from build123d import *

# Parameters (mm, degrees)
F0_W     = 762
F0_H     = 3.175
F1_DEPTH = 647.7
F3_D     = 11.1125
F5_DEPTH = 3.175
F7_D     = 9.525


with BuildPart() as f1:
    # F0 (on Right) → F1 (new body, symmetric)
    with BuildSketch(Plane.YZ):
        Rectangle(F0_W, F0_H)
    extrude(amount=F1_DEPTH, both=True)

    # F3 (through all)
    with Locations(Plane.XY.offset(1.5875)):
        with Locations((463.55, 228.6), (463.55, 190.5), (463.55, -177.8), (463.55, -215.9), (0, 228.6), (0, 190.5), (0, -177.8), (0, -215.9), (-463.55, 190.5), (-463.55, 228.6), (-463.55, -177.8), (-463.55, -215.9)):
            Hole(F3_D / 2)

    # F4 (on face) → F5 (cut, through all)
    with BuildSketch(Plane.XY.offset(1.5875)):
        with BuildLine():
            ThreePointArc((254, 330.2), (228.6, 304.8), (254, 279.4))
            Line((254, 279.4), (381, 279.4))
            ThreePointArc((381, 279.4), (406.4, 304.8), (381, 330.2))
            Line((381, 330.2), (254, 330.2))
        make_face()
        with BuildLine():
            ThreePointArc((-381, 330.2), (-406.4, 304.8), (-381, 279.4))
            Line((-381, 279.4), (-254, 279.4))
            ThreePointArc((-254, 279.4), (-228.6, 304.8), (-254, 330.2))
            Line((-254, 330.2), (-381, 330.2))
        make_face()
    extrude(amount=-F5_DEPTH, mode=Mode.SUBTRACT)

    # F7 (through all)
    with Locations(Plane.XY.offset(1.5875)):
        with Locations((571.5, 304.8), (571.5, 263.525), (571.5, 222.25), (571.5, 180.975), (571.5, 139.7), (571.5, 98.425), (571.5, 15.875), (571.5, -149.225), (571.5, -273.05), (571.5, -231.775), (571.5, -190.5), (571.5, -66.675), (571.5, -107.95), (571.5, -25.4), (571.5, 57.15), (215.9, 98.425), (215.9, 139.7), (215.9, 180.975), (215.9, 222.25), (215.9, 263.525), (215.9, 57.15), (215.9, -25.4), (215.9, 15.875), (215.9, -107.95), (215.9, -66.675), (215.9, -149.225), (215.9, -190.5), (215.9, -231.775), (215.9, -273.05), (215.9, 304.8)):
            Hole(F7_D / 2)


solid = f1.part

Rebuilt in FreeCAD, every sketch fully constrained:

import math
import FreeCAD as App
import Part
import Sketcher

V = App.Vector
Q = App.Units.Quantity

doc = App.newDocument("Part")
body = doc.addObject("PartDesign::Body", "Body")

# Sketch on YZ plane
sketch1 = body.newObject("Sketcher::SketchObject", "Sketch")
sketch1.AttachmentSupport = (doc.getObject("YZ_Plane"), [""])
sketch1.MapMode = "FlatFace"
sketch1.addGeometry(Part.LineSegment(V(-381, 1.6, 0), V(-381, -1.6, 0)), False)
sketch1.addGeometry(Part.LineSegment(V(-381, -1.6, 0), V(381, -1.6, 0)), False)
sketch1.addGeometry(Part.LineSegment(V(381, -1.6, 0), V(381, 1.6, 0)), False)
sketch1.addGeometry(Part.LineSegment(V(381, 1.6, 0), V(-381, 1.6, 0)), False)
sketch1.addConstraint(Sketcher.Constraint("Coincident", 0, 2, 1, 1))
sketch1.addConstraint(Sketcher.Constraint("Coincident", 1, 2, 2, 1))
sketch1.addConstraint(Sketcher.Constraint("Coincident", 2, 2, 3, 1))
sketch1.addConstraint(Sketcher.Constraint("Coincident", 3, 2, 0, 1))
sketch1.addConstraint(Sketcher.Constraint("Vertical", 0))
sketch1.addConstraint(Sketcher.Constraint("Horizontal", 1))
sketch1.addConstraint(Sketcher.Constraint("Vertical", 2))
sketch1.addConstraint(Sketcher.Constraint("Horizontal", 3))
sketch1.addConstraint(Sketcher.Constraint("Symmetric", 0, 2, 2, 2, -1, 1))
sketch1.addConstraint(Sketcher.Constraint("DistanceX", 1, 1, 1, 2, Q("30 in")))
sketch1.addConstraint(Sketcher.Constraint("DistanceY", 0, 2, 0, 1, Q("0.125 in")))
pad1 = body.newObject("PartDesign::Pad", "Pad")
pad1.Profile = sketch1
pad1.Length = Q("51 in")
pad1.Midplane = True

# Sketch on XY plane
sketch2 = body.newObject("Sketcher::SketchObject", "Sketch001")
sketch2.AttachmentSupport = (doc.getObject("XY_Plane"), [""])
sketch2.MapMode = "FlatFace"
sketch2.AttachmentOffset = App.Placement(V(0, 0, 0.0625 * 25.4), App.Rotation())
sketch2.addGeometry(Part.Circle(V(464, 229, 0), V(0, 0, 1), 6), False)
sketch2.addGeometry(Part.Circle(V(464, 190, 0), V(0, 0, 1), 6), False)
sketch2.addGeometry(Part.Circle(V(464, -178, 0), V(0, 0, 1), 6), False)
sketch2.addGeometry(Part.Circle(V(464, -216, 0), V(0, 0, 1), 6), False)
sketch2.addGeometry(Part.Circle(V(0, 229, 0), V(0, 0, 1), 6), False)
sketch2.addGeometry(Part.Circle(V(0, 190, 0), V(0, 0, 1), 6), False)
sketch2.addGeometry(Part.Circle(V(0, -178, 0), V(0, 0, 1), 6), False)
sketch2.addGeometry(Part.Circle(V(0, -216, 0), V(0, 0, 1), 6), False)
sketch2.addGeometry(Part.Circle(V(-464, 190, 0), V(0, 0, 1), 6), False)
sketch2.addGeometry(Part.Circle(V(-464, 229, 0), V(0, 0, 1), 6), False)
sketch2.addGeometry(Part.Circle(V(-464, -178, 0), V(0, 0, 1), 6), False)
sketch2.addGeometry(Part.Circle(V(-464, -216, 0), V(0, 0, 1), 6), False)
sketch2.addConstraint(Sketcher.Constraint("Equal", 0, 1))
sketch2.addConstraint(Sketcher.Constraint("Equal", 1, 2))
sketch2.addConstraint(Sketcher.Constraint("Equal", 2, 3))
sketch2.addConstraint(Sketcher.Constraint("Equal", 3, 4))
sketch2.addConstraint(Sketcher.Constraint("Equal", 4, 5))
sketch2.addConstraint(Sketcher.Constraint("Equal", 5, 6))
sketch2.addConstraint(Sketcher.Constraint("Equal", 6, 7))
sketch2.addConstraint(Sketcher.Constraint("Equal", 7, 8))
sketch2.addConstraint(Sketcher.Constraint("Equal", 8, 9))
sketch2.addConstraint(Sketcher.Constraint("Equal", 9, 10))
sketch2.addConstraint(Sketcher.Constraint("Equal", 10, 11))
sketch2.addConstraint(Sketcher.Constraint("Symmetric", 1, 3, 8, 3, -2))
sketch2.addConstraint(Sketcher.Constraint("Symmetric", 0, 3, 9, 3, -2))
sketch2.addConstraint(Sketcher.Constraint("Symmetric", 2, 3, 10, 3, -2))
sketch2.addConstraint(Sketcher.Constraint("Symmetric", 3, 3, 11, 3, -2))
sketch2.addConstraint(Sketcher.Constraint("PointOnObject", 4, 3, -2))
sketch2.addConstraint(Sketcher.Constraint("PointOnObject", 5, 3, -2))
sketch2.addConstraint(Sketcher.Constraint("PointOnObject", 6, 3, -2))
sketch2.addConstraint(Sketcher.Constraint("PointOnObject", 7, 3, -2))
sketch2.addConstraint(Sketcher.Constraint("Horizontal", 0, 3, 4, 3))
sketch2.addConstraint(Sketcher.Constraint("Horizontal", 1, 3, 5, 3))
sketch2.addConstraint(Sketcher.Constraint("Horizontal", 2, 3, 6, 3))
sketch2.addConstraint(Sketcher.Constraint("Horizontal", 3, 3, 7, 3))
sketch2.addConstraint(Sketcher.Constraint("Vertical", 0, 3, 1, 3))
sketch2.addConstraint(Sketcher.Constraint("Vertical", 1, 3, 2, 3))
sketch2.addConstraint(Sketcher.Constraint("Vertical", 2, 3, 3, 3))
sketch2.addConstraint(Sketcher.Constraint("Diameter", 0, Q("0.4375 in")))
sketch2.addConstraint(Sketcher.Constraint("DistanceY", -1, 1, 0, 3, Q("9 in")))
sketch2.addConstraint(Sketcher.Constraint("DistanceY", 2, 3, -1, 1, Q("7 in")))
sketch2.addConstraint(Sketcher.Constraint("DistanceY", 3, 3, 1, 3, Q("16 in")))
sketch2.addConstraint(Sketcher.Constraint("DistanceY", -1, 1, 1, 3, Q("7.5 in")))
sketch2.addConstraint(Sketcher.Constraint("DistanceX", 8, 3, 1, 3, Q("36.5 in")))
doc.recompute()
hole = body.newObject("PartDesign::Hole", "Hole")
hole.Profile = sketch2
hole.ThreadType = "None"
hole.Diameter = Q("0.4375 in")
hole.DepthType = "ThroughAll"

# Sketch on XY plane
sketch3 = body.newObject("Sketcher::SketchObject", "Sketch002")
sketch3.AttachmentSupport = (doc.getObject("XY_Plane"), [""])
sketch3.MapMode = "FlatFace"
sketch3.AttachmentOffset = App.Placement(V(0, 0, 0.0625 * 25.4), App.Rotation())
sketch3.addGeometry(Part.ArcOfCircle(Part.Circle(V(254, 305, 0), V(0, 0, 1), 25), math.radians(90), math.radians(270)), False)
sketch3.addGeometry(Part.LineSegment(V(254, 279, 0), V(381, 279, 0)), False)
sketch3.addGeometry(Part.ArcOfCircle(Part.Circle(V(381, 305, 0), V(0, 0, 1), 25), math.radians(-90), math.radians(90)), False)
sketch3.addGeometry(Part.LineSegment(V(381, 330, 0), V(254, 330, 0)), False)
sketch3.addGeometry(Part.ArcOfCircle(Part.Circle(V(-381, 305, 0), V(0, 0, 1), 25), math.radians(90), math.radians(270)), False)
sketch3.addGeometry(Part.LineSegment(V(-381, 279, 0), V(-254, 279, 0)), False)
sketch3.addGeometry(Part.ArcOfCircle(Part.Circle(V(-254, 305, 0), V(0, 0, 1), 25), math.radians(-90), math.radians(90)), False)
sketch3.addGeometry(Part.LineSegment(V(-254, 330, 0), V(-381, 330, 0)), False)
sketch3.addConstraint(Sketcher.Constraint("Tangent", 0, 2, 1, 1))
sketch3.addConstraint(Sketcher.Constraint("Tangent", 1, 2, 2, 1))
sketch3.addConstraint(Sketcher.Constraint("Tangent", 2, 2, 3, 1))
sketch3.addConstraint(Sketcher.Constraint("Tangent", 3, 2, 0, 1))
sketch3.addConstraint(Sketcher.Constraint("Tangent", 4, 2, 5, 1))
sketch3.addConstraint(Sketcher.Constraint("Tangent", 5, 2, 6, 1))
sketch3.addConstraint(Sketcher.Constraint("Tangent", 6, 2, 7, 1))
sketch3.addConstraint(Sketcher.Constraint("Tangent", 7, 2, 4, 1))
sketch3.addConstraint(Sketcher.Constraint("Horizontal", 1))
sketch3.addConstraint(Sketcher.Constraint("Horizontal", 3))
sketch3.addConstraint(Sketcher.Constraint("Horizontal", 5))
sketch3.addConstraint(Sketcher.Constraint("Horizontal", 7))
sketch3.addConstraint(Sketcher.Constraint("Equal", 2, 4))
sketch3.addConstraint(Sketcher.Constraint("Symmetric", 2, 3, 4, 3, -2))
sketch3.addConstraint(Sketcher.Constraint("Equal", 3, 5))
sketch3.addConstraint(Sketcher.Constraint("Radius", 0, Q("1 in")))
sketch3.addConstraint(Sketcher.Constraint("DistanceX", 1, 1, 1, 2, Q("5 in")))
sketch3.addConstraint(Sketcher.Constraint("DistanceX", -1, 1, 0, 3, Q("10 in")))
sketch3.addConstraint(Sketcher.Constraint("DistanceY", -1, 1, 0, 3, Q("12 in")))
pocket1 = body.newObject("PartDesign::Pocket", "Pocket")
pocket1.Profile = sketch3
pocket1.Type = "ThroughAll"

# Sketch on XY plane
sketch4 = body.newObject("Sketcher::SketchObject", "Sketch003")
sketch4.AttachmentSupport = (doc.getObject("XY_Plane"), [""])
sketch4.MapMode = "FlatFace"
sketch4.AttachmentOffset = App.Placement(V(0, 0, 0.0625 * 25.4), App.Rotation())
sketch4.addGeometry(Part.Circle(V(571.5, 304.8, 0), V(0, 0, 1), 4.8), False)
sketch4.addGeometry(Part.Circle(V(571.5, 263.5, 0), V(0, 0, 1), 4.8), False)
sketch4.addGeometry(Part.Circle(V(571.5, 222.2, 0), V(0, 0, 1), 4.8), False)
sketch4.addGeometry(Part.Circle(V(571.5, 181, 0), V(0, 0, 1), 4.8), False)
sketch4.addGeometry(Part.Circle(V(571.5, 139.7, 0), V(0, 0, 1), 4.8), False)
sketch4.addGeometry(Part.Circle(V(571.5, 98.4, 0), V(0, 0, 1), 4.8), False)
sketch4.addGeometry(Part.Circle(V(571.5, 15.9, 0), V(0, 0, 1), 4.8), False)
sketch4.addGeometry(Part.Circle(V(571.5, -149.2, 0), V(0, 0, 1), 4.8), False)
sketch4.addGeometry(Part.Circle(V(571.5, -273.1, 0), V(0, 0, 1), 4.8), False)
sketch4.addGeometry(Part.Circle(V(571.5, -231.8, 0), V(0, 0, 1), 4.8), False)
sketch4.addGeometry(Part.Circle(V(571.5, -190.5, 0), V(0, 0, 1), 4.8), False)
sketch4.addGeometry(Part.Circle(V(571.5, -66.7, 0), V(0, 0, 1), 4.8), False)
sketch4.addGeometry(Part.Circle(V(571.5, -108, 0), V(0, 0, 1), 4.8), False)
sketch4.addGeometry(Part.Circle(V(571.5, -25.4, 0), V(0, 0, 1), 4.8), False)
sketch4.addGeometry(Part.Circle(V(571.5, 57.1, 0), V(0, 0, 1), 4.8), False)
sketch4.addGeometry(Part.Circle(V(215.9, 98.4, 0), V(0, 0, 1), 4.8), False)
sketch4.addGeometry(Part.Circle(V(215.9, 139.7, 0), V(0, 0, 1), 4.8), False)
sketch4.addGeometry(Part.Circle(V(215.9, 181, 0), V(0, 0, 1), 4.8), False)
sketch4.addGeometry(Part.Circle(V(215.9, 222.2, 0), V(0, 0, 1), 4.8), False)
sketch4.addGeometry(Part.Circle(V(215.9, 263.5, 0), V(0, 0, 1), 4.8), False)
sketch4.addGeometry(Part.Circle(V(215.9, 57.1, 0), V(0, 0, 1), 4.8), False)
sketch4.addGeometry(Part.Circle(V(215.9, -25.4, 0), V(0, 0, 1), 4.8), False)
sketch4.addGeometry(Part.Circle(V(215.9, 15.9, 0), V(0, 0, 1), 4.8), False)
sketch4.addGeometry(Part.Circle(V(215.9, -108, 0), V(0, 0, 1), 4.8), False)
sketch4.addGeometry(Part.Circle(V(215.9, -66.7, 0), V(0, 0, 1), 4.8), False)
sketch4.addGeometry(Part.Circle(V(215.9, -149.2, 0), V(0, 0, 1), 4.8), False)
sketch4.addGeometry(Part.Circle(V(215.9, -190.5, 0), V(0, 0, 1), 4.8), False)
sketch4.addGeometry(Part.Circle(V(215.9, -231.8, 0), V(0, 0, 1), 4.8), False)
sketch4.addGeometry(Part.Circle(V(215.9, -273.1, 0), V(0, 0, 1), 4.8), False)
sketch4.addGeometry(Part.Circle(V(215.9, 304.8, 0), V(0, 0, 1), 4.8), False)
sketch4.addConstraint(Sketcher.Constraint("Equal", 0, 1))
sketch4.addConstraint(Sketcher.Constraint("Equal", 1, 2))
sketch4.addConstraint(Sketcher.Constraint("Equal", 2, 3))
sketch4.addConstraint(Sketcher.Constraint("Equal", 3, 4))
sketch4.addConstraint(Sketcher.Constraint("Equal", 4, 5))
sketch4.addConstraint(Sketcher.Constraint("Equal", 5, 6))
sketch4.addConstraint(Sketcher.Constraint("Equal", 6, 7))
sketch4.addConstraint(Sketcher.Constraint("Equal", 7, 8))
sketch4.addConstraint(Sketcher.Constraint("Equal", 8, 9))
sketch4.addConstraint(Sketcher.Constraint("Equal", 9, 10))
sketch4.addConstraint(Sketcher.Constraint("Equal", 10, 11))
sketch4.addConstraint(Sketcher.Constraint("Equal", 11, 12))
sketch4.addConstraint(Sketcher.Constraint("Equal", 12, 13))
sketch4.addConstraint(Sketcher.Constraint("Equal", 13, 14))
sketch4.addConstraint(Sketcher.Constraint("Equal", 14, 15))
sketch4.addConstraint(Sketcher.Constraint("Equal", 15, 16))
sketch4.addConstraint(Sketcher.Constraint("Equal", 16, 17))
sketch4.addConstraint(Sketcher.Constraint("Equal", 17, 18))
sketch4.addConstraint(Sketcher.Constraint("Equal", 18, 19))
sketch4.addConstraint(Sketcher.Constraint("Equal", 19, 20))
sketch4.addConstraint(Sketcher.Constraint("Equal", 20, 21))
sketch4.addConstraint(Sketcher.Constraint("Equal", 21, 22))
sketch4.addConstraint(Sketcher.Constraint("Equal", 22, 23))
sketch4.addConstraint(Sketcher.Constraint("Equal", 23, 24))
sketch4.addConstraint(Sketcher.Constraint("Equal", 24, 25))
sketch4.addConstraint(Sketcher.Constraint("Equal", 25, 26))
sketch4.addConstraint(Sketcher.Constraint("Equal", 26, 27))
sketch4.addConstraint(Sketcher.Constraint("Equal", 27, 28))
sketch4.addConstraint(Sketcher.Constraint("Equal", 28, 29))
sketch4.addConstraint(Sketcher.Constraint("Horizontal", 5, 3, 15, 3))
sketch4.addConstraint(Sketcher.Constraint("Horizontal", 4, 3, 16, 3))
sketch4.addConstraint(Sketcher.Constraint("Horizontal", 3, 3, 17, 3))
sketch4.addConstraint(Sketcher.Constraint("Horizontal", 2, 3, 18, 3))
sketch4.addConstraint(Sketcher.Constraint("Horizontal", 1, 3, 19, 3))
sketch4.addConstraint(Sketcher.Constraint("Horizontal", 14, 3, 20, 3))
sketch4.addConstraint(Sketcher.Constraint("Horizontal", 13, 3, 21, 3))
sketch4.addConstraint(Sketcher.Constraint("Horizontal", 6, 3, 22, 3))
sketch4.addConstraint(Sketcher.Constraint("Horizontal", 12, 3, 23, 3))
sketch4.addConstraint(Sketcher.Constraint("Horizontal", 11, 3, 24, 3))
sketch4.addConstraint(Sketcher.Constraint("Horizontal", 7, 3, 25, 3))
sketch4.addConstraint(Sketcher.Constraint("Horizontal", 10, 3, 26, 3))
sketch4.addConstraint(Sketcher.Constraint("Horizontal", 9, 3, 27, 3))
sketch4.addConstraint(Sketcher.Constraint("Horizontal", 8, 3, 28, 3))
sketch4.addConstraint(Sketcher.Constraint("Horizontal", 0, 3, 29, 3))
sketch4.addConstraint(Sketcher.Constraint("Vertical", 0, 3, 1, 3))
sketch4.addConstraint(Sketcher.Constraint("Vertical", 1, 3, 2, 3))
sketch4.addConstraint(Sketcher.Constraint("Vertical", 2, 3, 3, 3))
sketch4.addConstraint(Sketcher.Constraint("Vertical", 3, 3, 4, 3))
sketch4.addConstraint(Sketcher.Constraint("Vertical", 4, 3, 5, 3))
sketch4.addConstraint(Sketcher.Constraint("Vertical", 5, 3, 6, 3))
sketch4.addConstraint(Sketcher.Constraint("Vertical", 6, 3, 7, 3))
sketch4.addConstraint(Sketcher.Constraint("Vertical", 7, 3, 8, 3))
sketch4.addConstraint(Sketcher.Constraint("Vertical", 8, 3, 9, 3))
sketch4.addConstraint(Sketcher.Constraint("Vertical", 9, 3, 10, 3))
sketch4.addConstraint(Sketcher.Constraint("Vertical", 10, 3, 11, 3))
sketch4.addConstraint(Sketcher.Constraint("Vertical", 11, 3, 12, 3))
sketch4.addConstraint(Sketcher.Constraint("Vertical", 12, 3, 13, 3))
sketch4.addConstraint(Sketcher.Constraint("Vertical", 13, 3, 14, 3))
sketch4.addConstraint(Sketcher.Constraint("Vertical", 15, 3, 16, 3))
sketch4.addConstraint(Sketcher.Constraint("Vertical", 16, 3, 17, 3))
sketch4.addConstraint(Sketcher.Constraint("Vertical", 17, 3, 18, 3))
sketch4.addConstraint(Sketcher.Constraint("Vertical", 18, 3, 19, 3))
sketch4.addConstraint(Sketcher.Constraint("Vertical", 19, 3, 20, 3))
sketch4.addConstraint(Sketcher.Constraint("Vertical", 20, 3, 21, 3))
sketch4.addConstraint(Sketcher.Constraint("Vertical", 21, 3, 22, 3))
sketch4.addConstraint(Sketcher.Constraint("Vertical", 22, 3, 23, 3))
sketch4.addConstraint(Sketcher.Constraint("Vertical", 23, 3, 24, 3))
sketch4.addConstraint(Sketcher.Constraint("Vertical", 24, 3, 25, 3))
sketch4.addConstraint(Sketcher.Constraint("Vertical", 25, 3, 26, 3))
sketch4.addConstraint(Sketcher.Constraint("Vertical", 26, 3, 27, 3))
sketch4.addConstraint(Sketcher.Constraint("Vertical", 27, 3, 28, 3))
sketch4.addConstraint(Sketcher.Constraint("Vertical", 28, 3, 29, 3))
sketch4.addConstraint(Sketcher.Constraint("Diameter", 0, Q("0.375 in")))
sketch4.addConstraint(Sketcher.Constraint("DistanceY", -1, 1, 0, 3, Q("12 in")))
sketch4.addConstraint(Sketcher.Constraint("DistanceY", 13, 3, -1, 1, Q("1 in")))
sketch4.addConstraint(Sketcher.Constraint("DistanceY", 7, 3, 3, 3, Q("13 in")))
sketch4.addConstraint(Sketcher.Constraint("DistanceY", 9, 3, 5, 3, Q("13 in")))
sketch4.addConstraint(Sketcher.Constraint("DistanceX", 15, 3, 5, 3, Q("14 in")))
sketch4.addConstraint(Sketcher.Constraint("DistanceX", -1, 1, 0, 3, Q("22.5 in")))
sketch4.addConstraint(Sketcher.Constraint("DistanceY", -1, 1, 4, 3, Q("5.5 in")))
sketch4.addConstraint(Sketcher.Constraint("DistanceY", 10, 3, -1, 1, Q("7.5 in")))
sketch4.addConstraint(Sketcher.Constraint("DistanceY", 5, 3, 1, 3, Q("6.5 in")))
sketch4.addConstraint(Sketcher.Constraint("DistanceY", 6, 3, 3, 3, Q("6.5 in")))
sketch4.addConstraint(Sketcher.Constraint("DistanceY", 11, 3, 5, 3, Q("6.5 in")))
sketch4.addConstraint(Sketcher.Constraint("DistanceY", 20, 3, 18, 3, Q("6.5 in")))
sketch4.addConstraint(Sketcher.Constraint("DistanceY", 23, 3, 20, 3, Q("6.5 in")))
sketch4.addConstraint(Sketcher.Constraint("DistanceY", 28, 3, 23, 3, Q("6.5 in")))
sketch4.addConstraint(Sketcher.Constraint("DistanceY", -1, 1, 2, 3, Q("8.75 in")))
sketch4.addConstraint(Sketcher.Constraint("DistanceY", 3, 3, 1, 3, Q("3.25 in")))
sketch4.addConstraint(Sketcher.Constraint("DistanceY", -1, 1, 1, 3, Q("10.375 in")))
doc.recompute()
hole2 = body.newObject("PartDesign::Hole", "Hole001")
hole2.Profile = sketch4
hole2.ThreadType = "None"
hole2.Diameter = Q("0.375 in")
hole2.DepthType = "ThroughAll"

doc.recompute()
